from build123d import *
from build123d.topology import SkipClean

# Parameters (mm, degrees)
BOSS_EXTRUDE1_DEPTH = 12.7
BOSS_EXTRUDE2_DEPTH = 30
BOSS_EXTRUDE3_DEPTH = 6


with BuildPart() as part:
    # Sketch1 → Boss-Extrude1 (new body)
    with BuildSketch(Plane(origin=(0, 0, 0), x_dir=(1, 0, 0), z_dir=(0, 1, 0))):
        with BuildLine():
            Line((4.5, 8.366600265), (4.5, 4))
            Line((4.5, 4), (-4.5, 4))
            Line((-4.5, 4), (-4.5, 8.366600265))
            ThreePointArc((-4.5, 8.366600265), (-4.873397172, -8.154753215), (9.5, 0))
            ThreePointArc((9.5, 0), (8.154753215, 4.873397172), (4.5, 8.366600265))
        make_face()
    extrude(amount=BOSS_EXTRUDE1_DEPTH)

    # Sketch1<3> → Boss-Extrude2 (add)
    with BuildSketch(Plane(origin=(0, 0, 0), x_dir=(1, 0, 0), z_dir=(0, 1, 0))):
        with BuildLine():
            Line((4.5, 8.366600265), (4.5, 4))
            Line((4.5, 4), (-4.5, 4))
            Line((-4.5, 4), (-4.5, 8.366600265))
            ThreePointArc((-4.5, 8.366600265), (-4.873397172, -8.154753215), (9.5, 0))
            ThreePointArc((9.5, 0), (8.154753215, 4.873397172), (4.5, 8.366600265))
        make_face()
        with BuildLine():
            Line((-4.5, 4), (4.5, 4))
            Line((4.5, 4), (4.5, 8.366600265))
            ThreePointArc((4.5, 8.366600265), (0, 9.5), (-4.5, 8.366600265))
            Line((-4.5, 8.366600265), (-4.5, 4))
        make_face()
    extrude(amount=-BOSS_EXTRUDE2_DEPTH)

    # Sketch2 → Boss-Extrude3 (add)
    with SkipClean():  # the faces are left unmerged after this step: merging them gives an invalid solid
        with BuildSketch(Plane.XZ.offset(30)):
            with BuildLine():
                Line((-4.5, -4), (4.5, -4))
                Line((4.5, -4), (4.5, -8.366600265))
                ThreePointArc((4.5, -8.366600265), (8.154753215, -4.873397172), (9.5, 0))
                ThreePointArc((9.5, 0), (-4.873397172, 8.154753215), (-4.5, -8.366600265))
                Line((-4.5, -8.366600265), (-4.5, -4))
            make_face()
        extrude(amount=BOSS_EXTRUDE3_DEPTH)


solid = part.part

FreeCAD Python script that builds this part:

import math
import FreeCAD as App
import Part
import Sketcher

V = App.Vector
Q = App.Units.Quantity

doc = App.newDocument("Part")
body = doc.addObject("PartDesign::Body", "Body")

# Sketch on XZ plane
sketch1 = body.newObject("Sketcher::SketchObject", "Sketch")
sketch1.AttachmentSupport = (doc.getObject("XZ_Plane"), [""])
sketch1.MapMode = "FlatFace"
sketch1.addGeometry([
    Part.LineSegment(V(4.5, -8.4, 0), V(4.5, -4, 0)),  # 0
    Part.LineSegment(V(4.5, -4, 0), V(-4.5, -4, 0)),  # 1
    Part.LineSegment(V(-4.5, -4, 0), V(-4.5, -8.4, 0)),  # 2
    Part.ArcOfCircle(Part.Circle(V(0, 0, 0), V(0, 0, 1), 9.5), math.radians(0), math.radians(242)),  # 3
    Part.ArcOfCircle(Part.Circle(V(0, 0, 0), V(0, 0, 1), 9.5), math.radians(-62), math.radians(0)),  # 4
], False)
sketch1.addConstraint([
    Sketcher.Constraint("Coincident", 0, 2, 1, 1),
    Sketcher.Constraint("Coincident", 1, 2, 2, 1),
    Sketcher.Constraint("Coincident", 2, 2, 3, 2),
    Sketcher.Constraint("Tangent", 3, 1, 4, 2),
    Sketcher.Constraint("Coincident", 4, 1, 0, 1),
    Sketcher.Constraint("Vertical", 0),
    Sketcher.Constraint("Horizontal", 1),
    Sketcher.Constraint("Vertical", 2),
    Sketcher.Constraint("Coincident", 3, 3, -1, 1),
    Sketcher.Constraint("Equal", 3, 4),
    Sketcher.Constraint("PointOnObject", 3, 1, -1),
    Sketcher.Constraint("Horizontal", 2, 2, 4, 1),
    Sketcher.Constraint("Radius", 3, Q("9.5 mm")),
    Sketcher.Constraint("DistanceX", 1, 2, 1, 1, Q("9 mm")),
    Sketcher.Constraint("DistanceY", 0, 2, -1, 1, Q("4 mm")),
])
pad1 = body.newObject("PartDesign::Pad", "Pad")
pad1.Profile = sketch1
pad1.Length = 12.7
pad1.Reversed = True

# Sketch on XZ plane
sketch2 = body.newObject("Sketcher::SketchObject", "Sketch001")
sketch2.AttachmentSupport = (doc.getObject("XZ_Plane"), [""])
sketch2.MapMode = "FlatFace"
sketch2.addGeometry([
    Part.ArcOfCircle(Part.Circle(V(0, 0, 0), V(0, 0, 1), 10), math.radians(0), math.radians(242)),
    Part.ArcOfCircle(Part.Circle(V(0, 0, 0), V(0, 0, 1), 10), math.radians(-62), math.radians(0)),
    Part.ArcOfCircle(Part.Circle(V(0, 0, 0), V(0, 0, 1), 9), math.radians(-118), math.radians(-62)),
], False)
sketch2.addConstraint([
    Sketcher.Constraint("Tangent", 0, 1, 1, 2),
    Sketcher.Constraint("Tangent", 1, 1, 2, 2),
    Sketcher.Constraint("Tangent", 2, 1, 0, 2),
    Sketcher.Constraint("Coincident", 0, 3, -1, 1),
    Sketcher.Constraint("PointOnObject", 0, 1, -1),
    Sketcher.Constraint("Horizontal", 1, 1, 2, 1),
    Sketcher.Constraint("Radius", 0, Q("9.5 mm")),
    Sketcher.Constraint("DistanceX", 1, 1, 0, 1, Q("5 mm")),
])
pad2 = body.newObject("PartDesign::Pad", "Pad001")
pad2.Profile = sketch2
pad2.Length = 30

# Sketch on XZ plane
sketch3 = body.newObject("Sketcher::SketchObject", "Sketch002")
sketch3.AttachmentSupport = (doc.getObject("XZ_Plane"), [""])
sketch3.MapMode = "FlatFace"
sketch3.AttachmentOffset = App.Placement(V(0, 0, 30), App.Rotation())
sketch3.addGeometry([
    Part.LineSegment(V(-4.5, -4, 0), V(4.5, -4, 0)),  # 0
    Part.LineSegment(V(4.5, -4, 0), V(4.5, -8.4, 0)),  # 1
    Part.ArcOfCircle(Part.Circle(V(0, 0, 0), V(0, 0, 1), 9.5), math.radians(-62), math.radians(0)),  # 2
    Part.ArcOfCircle(Part.Circle(V(0, 0, 0), V(0, 0, 1), 9.5), math.radians(0), math.radians(242)),  # 3
    Part.LineSegment(V(-4.5, -8.4, 0), V(-4.5, -4, 0)),  # 4
], False)
sketch3.addConstraint([
    Sketcher.Constraint("Coincident", 0, 2, 1, 1),
    Sketcher.Constraint("Coincident", 1, 2, 2, 1),
    Sketcher.Constraint("Tangent", 2, 2, 3, 1),
    Sketcher.Constraint("Coincident", 3, 2, 4, 1),
    Sketcher.Constraint("Coincident", 4, 2, 0, 1),
    Sketcher.Constraint("Horizontal", 0),
    Sketcher.Constraint("Vertical", 1),
    Sketcher.Constraint("Vertical", 4),
    Sketcher.Constraint("Coincident", 2, 3, -1, 1),
    Sketcher.Constraint("Equal", 2, 3),
    Sketcher.Constraint("PointOnObject", 2, 2, -1),
    Sketcher.Constraint("Horizontal", 1, 2, 3, 2),
    Sketcher.Constraint("Radius", 2, Q("9.5 mm")),
    Sketcher.Constraint("DistanceX", 0, 1, 0, 2, Q("9 mm")),
    Sketcher.Constraint("DistanceY", 0, 2, -1, 1, Q("4 mm")),
])
pad3 = body.newObject("PartDesign::Pad", "Pad002")
pad3.Profile = sketch3
pad3.Length = 6

doc.recompute()
